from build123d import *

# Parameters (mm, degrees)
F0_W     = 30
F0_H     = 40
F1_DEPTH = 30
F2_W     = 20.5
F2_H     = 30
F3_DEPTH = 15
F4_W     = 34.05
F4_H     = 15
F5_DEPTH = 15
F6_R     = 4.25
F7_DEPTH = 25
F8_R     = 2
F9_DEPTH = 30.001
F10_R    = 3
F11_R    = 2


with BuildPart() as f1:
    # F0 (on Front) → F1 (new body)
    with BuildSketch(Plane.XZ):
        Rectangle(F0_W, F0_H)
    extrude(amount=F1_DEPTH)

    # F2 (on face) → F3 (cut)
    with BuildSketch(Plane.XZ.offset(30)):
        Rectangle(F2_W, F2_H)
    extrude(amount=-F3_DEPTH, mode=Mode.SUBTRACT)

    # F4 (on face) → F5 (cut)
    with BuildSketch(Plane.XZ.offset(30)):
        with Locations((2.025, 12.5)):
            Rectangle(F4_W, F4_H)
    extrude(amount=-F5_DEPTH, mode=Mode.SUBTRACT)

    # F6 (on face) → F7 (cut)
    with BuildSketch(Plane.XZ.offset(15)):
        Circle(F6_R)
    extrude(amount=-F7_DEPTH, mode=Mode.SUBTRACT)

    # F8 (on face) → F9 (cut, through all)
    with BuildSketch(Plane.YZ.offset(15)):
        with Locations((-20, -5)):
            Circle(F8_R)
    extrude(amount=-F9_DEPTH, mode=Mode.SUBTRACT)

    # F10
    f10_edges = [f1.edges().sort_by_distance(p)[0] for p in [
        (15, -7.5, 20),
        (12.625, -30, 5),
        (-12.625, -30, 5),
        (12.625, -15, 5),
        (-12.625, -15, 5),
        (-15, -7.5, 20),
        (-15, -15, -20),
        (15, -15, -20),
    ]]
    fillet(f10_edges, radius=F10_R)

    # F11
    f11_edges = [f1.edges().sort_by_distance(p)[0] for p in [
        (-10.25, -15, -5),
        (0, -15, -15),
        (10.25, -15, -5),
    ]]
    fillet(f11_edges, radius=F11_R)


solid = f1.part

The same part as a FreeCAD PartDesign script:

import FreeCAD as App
import Part
import Sketcher
from FreeCAD import Vector


def edges_at(feature, points):
    """Names of the edges that pass closest to the given points."""
    edges = feature.Shape.Edges
    near = lambda p: min(range(len(edges)), key=lambda i: edges[i].distToShape(Part.Vertex(*p))[0])
    return sorted({f"Edge{near(p) + 1}" for p in points})

doc = App.newDocument("Part")
body = doc.addObject("PartDesign::Body", "Body")

# Sketch on XZ plane
sketch1 = body.newObject("Sketcher::SketchObject", "Sketch")
sketch1.AttachmentSupport = (doc.getObject("XZ_Plane"), [""])
sketch1.MapMode = "FlatFace"
sketch1.addGeometry([
    Part.LineSegment(Vector(-15, 20, 0), Vector(-15, -20, 0)),
    Part.LineSegment(Vector(-15, -20, 0), Vector(15, -20, 0)),
    Part.LineSegment(Vector(15, -20, 0), Vector(15, 20, 0)),
    Part.LineSegment(Vector(15, 20, 0), Vector(-15, 20, 0)),
], False)
sketch1.addConstraint([
    Sketcher.Constraint("Coincident", 0, 2, 1, 1),
    Sketcher.Constraint("Coincident", 1, 2, 2, 1),
    Sketcher.Constraint("Coincident", 2, 2, 3, 1),
    Sketcher.Constraint("Coincident", 3, 2, 0, 1),
    Sketcher.Constraint("Vertical", 0),
    Sketcher.Constraint("Horizontal", 1),
    Sketcher.Constraint("Vertical", 2),
    Sketcher.Constraint("Horizontal", 3),
    Sketcher.Constraint("Symmetric", 0, 2, 2, 2, -1, 1),
    Sketcher.Constraint("DistanceX", 1, 1, 1, 2, 30.0),
    Sketcher.Constraint("DistanceY", 0, 2, 0, 1, 40.0),
])
pad1 = body.newObject("PartDesign::Pad", "Pad")
pad1.Profile = sketch1
pad1.Length = 30

# Sketch on XZ plane
sketch2 = body.newObject("Sketcher::SketchObject", "Sketch001")
sketch2.AttachmentSupport = (doc.getObject("XZ_Plane"), [""])
sketch2.MapMode = "FlatFace"
sketch2.AttachmentOffset = App.Placement(Vector(0, 0, 30), App.Rotation())
sketch2.addGeometry([
    Part.LineSegment(Vector(-10.25, 15, 0), Vector(-10.25, -15, 0)),
    Part.LineSegment(Vector(-10.25, -15, 0), Vector(10.25, -15, 0)),
    Part.LineSegment(Vector(10.25, -15, 0), Vector(10.25, 15, 0)),
    Part.LineSegment(Vector(10.25, 15, 0), Vector(-10.25, 15, 0)),
], False)
sketch2.addConstraint([
    Sketcher.Constraint("Coincident", 0, 2, 1, 1),
    Sketcher.Constraint("Coincident", 1, 2, 2, 1),
    Sketcher.Constraint("Coincident", 2, 2, 3, 1),
    Sketcher.Constraint("Coincident", 3, 2, 0, 1),
    Sketcher.Constraint("Vertical", 0),
    Sketcher.Constraint("Horizontal", 1),
    Sketcher.Constraint("Vertical", 2),
    Sketcher.Constraint("Horizontal", 3),
    Sketcher.Constraint("Symmetric", 0, 2, 2, 2, -1, 1),
    Sketcher.Constraint("DistanceY", 0, 2, 0, 1, 30.0),
    Sketcher.Constraint("DistanceX", 1, 1, 1, 2, 20.5),
])
pocket1 = body.newObject("PartDesign::Pocket", "Pocket")
pocket1.Profile = sketch2
pocket1.Length = 15

# Sketch on XZ plane
sketch3 = body.newObject("Sketcher::SketchObject", "Sketch002")
sketch3.AttachmentSupport = (doc.getObject("XZ_Plane"), [""])
sketch3.MapMode = "FlatFace"
sketch3.AttachmentOffset = App.Placement(Vector(0, 0, 30), App.Rotation())
sketch3.addGeometry([
    Part.LineSegment(Vector(-15, 20, 0), Vector(-15, 5, 0)),
    Part.LineSegment(Vector(-15, 5, 0), Vector(19.05, 5, 0)),
    Part.LineSegment(Vector(19.05, 5, 0), Vector(19.05, 20, 0)),
    Part.LineSegment(Vector(19.05, 20, 0), Vector(-15, 20, 0)),
], False)
sketch3.addConstraint([
    Sketcher.Constraint("Coincident", 0, 2, 1, 1),
    Sketcher.Constraint("Coincident", 1, 2, 2, 1),
    Sketcher.Constraint("Coincident", 2, 2, 3, 1),
    Sketcher.Constraint("Coincident", 3, 2, 0, 1),
    Sketcher.Constraint("Vertical", 0),
    Sketcher.Constraint("Horizontal", 1),
    Sketcher.Constraint("Vertical", 2),
    Sketcher.Constraint("Horizontal", 3),
    Sketcher.Constraint("DistanceY", 0, 2, 0, 1, 15.0),
    Sketcher.Constraint("DistanceX", 0, 2, -1, 1, 15.0),
    Sketcher.Constraint("DistanceY", -1, 1, 0, 2, 5.0),
    Sketcher.Constraint("DistanceX", 1, 1, 1, 2, 34.05),
])
pocket2 = body.newObject("PartDesign::Pocket", "Pocket001")
pocket2.Profile = sketch3
pocket2.Length = 15

# Sketch on XZ plane
sketch4 = body.newObject("Sketcher::SketchObject", "Sketch003")
sketch4.AttachmentSupport = (doc.getObject("XZ_Plane"), [""])
sketch4.MapMode = "FlatFace"
sketch4.AttachmentOffset = App.Placement(Vector(0, 0, 15), App.Rotation())
sketch4.addGeometry(Part.Circle(Vector(0, 0, 0), Vector(0, 0, 1), 4.25), False)
sketch4.addConstraint([
    Sketcher.Constraint("Coincident", 0, 3, -1, 1),
    Sketcher.Constraint("Diameter", 0, 8.5),
])
pocket3 = body.newObject("PartDesign::Pocket", "Pocket002")
pocket3.Profile = sketch4
pocket3.Length = 25

# Sketch on YZ plane
sketch5 = body.newObject("Sketcher::SketchObject", "Sketch004")
sketch5.AttachmentSupport = (doc.getObject("YZ_Plane"), [""])
sketch5.MapMode = "FlatFace"
sketch5.AttachmentOffset = App.Placement(Vector(0, 0, 15), App.Rotation())
sketch5.addGeometry(Part.Circle(Vector(-20, -5, 0), Vector(0, 0, 1), 2), False)
sketch5.addConstraint([
    Sketcher.Constraint("Diameter", 0, 4.0),
    Sketcher.Constraint("DistanceX", 0, 3, -1, 1, 20.0),
    Sketcher.Constraint("DistanceY", 0, 3, -1, 1, 5.0),
])
pocket4 = body.newObject("PartDesign::Pocket", "Pocket003")
pocket4.Profile = sketch5
pocket4.Type = "ThroughAll"
doc.recompute()

fillet = body.newObject("PartDesign::Fillet", "Fillet")
fillet.Base = (pocket4, edges_at(pocket4, [
    (15, -7.5, 20),
    (12.625, -30, 5),
    (-12.625, -30, 5),
    (12.625, -15, 5),
    (-12.625, -15, 5),
    (-15, -7.5, 20),
    (-15, -15, -20),
    (15, -15, -20),
]))
fillet.Radius = 3
doc.recompute()

fillet2 = body.newObject("PartDesign::Fillet", "Fillet001")
fillet2.Base = (fillet, edges_at(fillet, [(-10.25, -15, -3.5), (0, -15, -15), (10.25, -15, -3.5)]))
fillet2.Radius = 2

doc.recompute()
